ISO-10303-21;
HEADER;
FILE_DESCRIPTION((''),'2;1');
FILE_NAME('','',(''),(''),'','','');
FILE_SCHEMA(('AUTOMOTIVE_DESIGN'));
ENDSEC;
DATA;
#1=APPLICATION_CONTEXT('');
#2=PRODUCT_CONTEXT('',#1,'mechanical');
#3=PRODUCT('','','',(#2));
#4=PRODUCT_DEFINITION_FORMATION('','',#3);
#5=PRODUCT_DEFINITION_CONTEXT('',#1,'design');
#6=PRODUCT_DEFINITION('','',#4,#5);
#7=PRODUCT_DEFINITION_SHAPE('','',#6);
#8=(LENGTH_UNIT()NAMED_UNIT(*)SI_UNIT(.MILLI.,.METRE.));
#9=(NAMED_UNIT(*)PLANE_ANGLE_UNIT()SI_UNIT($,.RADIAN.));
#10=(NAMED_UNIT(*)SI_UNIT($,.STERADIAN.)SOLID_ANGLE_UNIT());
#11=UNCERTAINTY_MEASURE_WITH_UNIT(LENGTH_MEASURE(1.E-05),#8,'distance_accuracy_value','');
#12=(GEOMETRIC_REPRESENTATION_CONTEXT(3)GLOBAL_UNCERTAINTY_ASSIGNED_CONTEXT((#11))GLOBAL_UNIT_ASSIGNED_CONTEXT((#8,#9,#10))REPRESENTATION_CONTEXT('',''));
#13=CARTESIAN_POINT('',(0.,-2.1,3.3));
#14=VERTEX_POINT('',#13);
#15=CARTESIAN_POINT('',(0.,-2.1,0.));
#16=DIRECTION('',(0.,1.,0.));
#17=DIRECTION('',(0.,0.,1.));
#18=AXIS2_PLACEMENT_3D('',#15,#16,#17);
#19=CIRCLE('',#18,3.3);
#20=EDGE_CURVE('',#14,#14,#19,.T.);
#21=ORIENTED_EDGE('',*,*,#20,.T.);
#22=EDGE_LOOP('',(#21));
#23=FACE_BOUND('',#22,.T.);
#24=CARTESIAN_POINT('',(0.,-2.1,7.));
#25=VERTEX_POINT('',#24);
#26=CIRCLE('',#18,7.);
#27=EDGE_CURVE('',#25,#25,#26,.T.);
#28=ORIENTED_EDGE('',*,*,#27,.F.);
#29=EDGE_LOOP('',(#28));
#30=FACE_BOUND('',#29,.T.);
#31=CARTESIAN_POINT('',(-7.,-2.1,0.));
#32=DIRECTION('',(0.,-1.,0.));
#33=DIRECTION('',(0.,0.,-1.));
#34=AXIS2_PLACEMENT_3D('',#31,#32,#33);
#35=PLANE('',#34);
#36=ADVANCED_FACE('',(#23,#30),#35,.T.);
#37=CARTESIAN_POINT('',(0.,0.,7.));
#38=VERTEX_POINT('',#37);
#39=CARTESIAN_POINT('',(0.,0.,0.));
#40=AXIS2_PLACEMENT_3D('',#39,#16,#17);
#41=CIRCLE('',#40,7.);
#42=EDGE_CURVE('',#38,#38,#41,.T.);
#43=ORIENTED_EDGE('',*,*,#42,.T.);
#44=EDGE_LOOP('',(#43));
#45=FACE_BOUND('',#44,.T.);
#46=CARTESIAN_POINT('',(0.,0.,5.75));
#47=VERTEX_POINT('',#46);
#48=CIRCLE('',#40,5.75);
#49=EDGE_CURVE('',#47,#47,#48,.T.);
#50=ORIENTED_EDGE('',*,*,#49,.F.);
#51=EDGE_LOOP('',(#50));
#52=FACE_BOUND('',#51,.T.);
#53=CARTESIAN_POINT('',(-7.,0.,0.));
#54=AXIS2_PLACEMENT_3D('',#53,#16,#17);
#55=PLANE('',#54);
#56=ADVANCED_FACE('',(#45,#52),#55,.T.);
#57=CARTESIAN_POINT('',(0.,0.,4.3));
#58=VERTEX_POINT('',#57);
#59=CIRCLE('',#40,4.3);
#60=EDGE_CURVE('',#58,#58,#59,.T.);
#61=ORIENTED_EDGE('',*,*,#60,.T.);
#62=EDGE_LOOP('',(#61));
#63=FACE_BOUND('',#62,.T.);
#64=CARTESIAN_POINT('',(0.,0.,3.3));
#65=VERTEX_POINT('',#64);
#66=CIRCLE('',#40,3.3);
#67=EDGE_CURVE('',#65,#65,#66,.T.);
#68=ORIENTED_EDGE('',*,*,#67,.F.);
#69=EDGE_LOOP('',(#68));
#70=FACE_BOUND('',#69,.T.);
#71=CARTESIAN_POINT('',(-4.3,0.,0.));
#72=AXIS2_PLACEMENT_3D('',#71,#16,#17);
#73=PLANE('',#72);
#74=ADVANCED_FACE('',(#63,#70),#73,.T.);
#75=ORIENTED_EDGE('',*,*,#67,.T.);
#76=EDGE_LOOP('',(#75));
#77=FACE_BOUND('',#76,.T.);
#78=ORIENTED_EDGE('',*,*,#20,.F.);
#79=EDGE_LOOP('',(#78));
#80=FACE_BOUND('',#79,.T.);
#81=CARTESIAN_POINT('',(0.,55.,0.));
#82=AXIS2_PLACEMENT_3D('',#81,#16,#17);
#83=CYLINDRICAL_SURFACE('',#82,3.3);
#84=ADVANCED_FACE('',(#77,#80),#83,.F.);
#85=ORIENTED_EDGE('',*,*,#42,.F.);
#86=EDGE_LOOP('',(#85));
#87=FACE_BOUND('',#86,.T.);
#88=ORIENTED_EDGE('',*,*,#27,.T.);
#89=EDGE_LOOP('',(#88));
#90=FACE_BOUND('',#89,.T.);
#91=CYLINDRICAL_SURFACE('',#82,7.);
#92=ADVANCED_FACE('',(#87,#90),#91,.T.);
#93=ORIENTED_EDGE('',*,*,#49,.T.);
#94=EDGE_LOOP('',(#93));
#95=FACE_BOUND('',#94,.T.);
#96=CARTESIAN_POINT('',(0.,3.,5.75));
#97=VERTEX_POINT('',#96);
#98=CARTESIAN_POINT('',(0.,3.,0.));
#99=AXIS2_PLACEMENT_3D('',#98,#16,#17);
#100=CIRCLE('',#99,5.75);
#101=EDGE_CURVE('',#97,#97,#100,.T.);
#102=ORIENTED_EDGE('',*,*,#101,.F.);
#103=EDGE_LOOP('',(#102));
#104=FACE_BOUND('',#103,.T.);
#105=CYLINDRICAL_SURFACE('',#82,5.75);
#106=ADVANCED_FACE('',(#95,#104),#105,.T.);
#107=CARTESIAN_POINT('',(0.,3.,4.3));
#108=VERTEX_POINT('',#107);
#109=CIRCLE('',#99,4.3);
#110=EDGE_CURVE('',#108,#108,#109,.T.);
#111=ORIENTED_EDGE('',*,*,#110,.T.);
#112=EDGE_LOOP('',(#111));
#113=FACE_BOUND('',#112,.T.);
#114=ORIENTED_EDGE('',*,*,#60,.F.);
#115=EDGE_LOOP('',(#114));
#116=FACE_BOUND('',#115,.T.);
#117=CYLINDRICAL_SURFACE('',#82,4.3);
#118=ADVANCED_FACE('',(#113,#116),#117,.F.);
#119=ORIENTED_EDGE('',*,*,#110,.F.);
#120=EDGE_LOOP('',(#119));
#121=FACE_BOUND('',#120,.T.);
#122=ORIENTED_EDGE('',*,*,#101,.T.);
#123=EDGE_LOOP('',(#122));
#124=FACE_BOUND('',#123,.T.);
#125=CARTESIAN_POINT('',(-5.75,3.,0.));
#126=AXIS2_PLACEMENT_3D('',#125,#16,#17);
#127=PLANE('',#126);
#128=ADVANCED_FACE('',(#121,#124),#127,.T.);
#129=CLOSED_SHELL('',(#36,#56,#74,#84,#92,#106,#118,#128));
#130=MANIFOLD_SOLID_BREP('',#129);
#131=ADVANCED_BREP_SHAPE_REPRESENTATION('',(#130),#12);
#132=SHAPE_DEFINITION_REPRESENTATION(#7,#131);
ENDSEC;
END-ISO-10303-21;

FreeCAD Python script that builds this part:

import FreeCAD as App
import Part
import Sketcher

doc = App.newDocument("Part")
body = doc.addObject("PartDesign::Body", "Body")

# Sketch on XY plane
sketch1 = doc.addObject("Sketcher::SketchObject", "Sketch")
body.addObject(sketch1)
sketch1.AttachmentSupport = (doc.XY_Plane, [""])
sketch1.MapMode = "FlatFace"
sketch1.addGeometry([
    Part.LineSegment(App.Vector(-4.3, 3, 0), App.Vector(-5.75, 3, 0)),  # 0
    Part.LineSegment(App.Vector(-5.75, 3, 0), App.Vector(-5.75, 0, 0)),  # 1
    Part.LineSegment(App.Vector(-5.75, 0, 0), App.Vector(-7, 0, 0)),  # 2
    Part.LineSegment(App.Vector(-7, 0, 0), App.Vector(-7, -2.1, 0)),  # 3
    Part.LineSegment(App.Vector(-7, -2.1, 0), App.Vector(-3.3, -2.1, 0)),  # 4
    Part.LineSegment(App.Vector(-3.3, -2.1, 0), App.Vector(-3.3, 0, 0)),  # 5
    Part.LineSegment(App.Vector(-3.3, 0, 0), App.Vector(-4.3, 0, 0)),  # 6
    Part.LineSegment(App.Vector(-4.3, 0, 0), App.Vector(-4.3, 3, 0)),  # 7
], False)
sketch1.addConstraint([
    Sketcher.Constraint("Coincident", 0, 2, 1, 1),
    Sketcher.Constraint("Coincident", 1, 2, 2, 1),
    Sketcher.Constraint("Coincident", 2, 2, 3, 1),
    Sketcher.Constraint("Coincident", 3, 2, 4, 1),
    Sketcher.Constraint("Coincident", 4, 2, 5, 1),
    Sketcher.Constraint("Coincident", 5, 2, 6, 1),
    Sketcher.Constraint("Coincident", 6, 2, 7, 1),
    Sketcher.Constraint("Coincident", 7, 2, 0, 1),
    Sketcher.Constraint("Horizontal", 0),
    Sketcher.Constraint("Vertical", 1),
    Sketcher.Constraint("Horizontal", 2),
    Sketcher.Constraint("Vertical", 3),
    Sketcher.Constraint("Horizontal", 4),
    Sketcher.Constraint("Vertical", 5),
    Sketcher.Constraint("Horizontal", 6),
    Sketcher.Constraint("Vertical", 7),
    Sketcher.Constraint("PointOnObject", 1, 2, -1),
    Sketcher.Constraint("PointOnObject", 5, 2, -1),
    Sketcher.Constraint("DistanceX", 6, 2, 6, 1, 1.0),
    Sketcher.Constraint("DistanceY", 1, 2, 1, 1, 3.0),
    Sketcher.Constraint("DistanceX", 4, 1, 4, 2, 3.7),
    Sketcher.Constraint("DistanceY", 3, 2, 3, 1, 2.1),
    Sketcher.Constraint("DistanceX", 2, 2, -1, 1, 7.0),
    Sketcher.Constraint("DistanceX", 0, 2, 0, 1, 1.45),
])
revolution = doc.addObject("PartDesign::Revolution", "Revolution")
body.addObject(revolution)
revolution.Profile = sketch1
revolution.ReferenceAxis = (sketch1, ["V_Axis"])
revolution.Angle = 360

doc.recompute()
